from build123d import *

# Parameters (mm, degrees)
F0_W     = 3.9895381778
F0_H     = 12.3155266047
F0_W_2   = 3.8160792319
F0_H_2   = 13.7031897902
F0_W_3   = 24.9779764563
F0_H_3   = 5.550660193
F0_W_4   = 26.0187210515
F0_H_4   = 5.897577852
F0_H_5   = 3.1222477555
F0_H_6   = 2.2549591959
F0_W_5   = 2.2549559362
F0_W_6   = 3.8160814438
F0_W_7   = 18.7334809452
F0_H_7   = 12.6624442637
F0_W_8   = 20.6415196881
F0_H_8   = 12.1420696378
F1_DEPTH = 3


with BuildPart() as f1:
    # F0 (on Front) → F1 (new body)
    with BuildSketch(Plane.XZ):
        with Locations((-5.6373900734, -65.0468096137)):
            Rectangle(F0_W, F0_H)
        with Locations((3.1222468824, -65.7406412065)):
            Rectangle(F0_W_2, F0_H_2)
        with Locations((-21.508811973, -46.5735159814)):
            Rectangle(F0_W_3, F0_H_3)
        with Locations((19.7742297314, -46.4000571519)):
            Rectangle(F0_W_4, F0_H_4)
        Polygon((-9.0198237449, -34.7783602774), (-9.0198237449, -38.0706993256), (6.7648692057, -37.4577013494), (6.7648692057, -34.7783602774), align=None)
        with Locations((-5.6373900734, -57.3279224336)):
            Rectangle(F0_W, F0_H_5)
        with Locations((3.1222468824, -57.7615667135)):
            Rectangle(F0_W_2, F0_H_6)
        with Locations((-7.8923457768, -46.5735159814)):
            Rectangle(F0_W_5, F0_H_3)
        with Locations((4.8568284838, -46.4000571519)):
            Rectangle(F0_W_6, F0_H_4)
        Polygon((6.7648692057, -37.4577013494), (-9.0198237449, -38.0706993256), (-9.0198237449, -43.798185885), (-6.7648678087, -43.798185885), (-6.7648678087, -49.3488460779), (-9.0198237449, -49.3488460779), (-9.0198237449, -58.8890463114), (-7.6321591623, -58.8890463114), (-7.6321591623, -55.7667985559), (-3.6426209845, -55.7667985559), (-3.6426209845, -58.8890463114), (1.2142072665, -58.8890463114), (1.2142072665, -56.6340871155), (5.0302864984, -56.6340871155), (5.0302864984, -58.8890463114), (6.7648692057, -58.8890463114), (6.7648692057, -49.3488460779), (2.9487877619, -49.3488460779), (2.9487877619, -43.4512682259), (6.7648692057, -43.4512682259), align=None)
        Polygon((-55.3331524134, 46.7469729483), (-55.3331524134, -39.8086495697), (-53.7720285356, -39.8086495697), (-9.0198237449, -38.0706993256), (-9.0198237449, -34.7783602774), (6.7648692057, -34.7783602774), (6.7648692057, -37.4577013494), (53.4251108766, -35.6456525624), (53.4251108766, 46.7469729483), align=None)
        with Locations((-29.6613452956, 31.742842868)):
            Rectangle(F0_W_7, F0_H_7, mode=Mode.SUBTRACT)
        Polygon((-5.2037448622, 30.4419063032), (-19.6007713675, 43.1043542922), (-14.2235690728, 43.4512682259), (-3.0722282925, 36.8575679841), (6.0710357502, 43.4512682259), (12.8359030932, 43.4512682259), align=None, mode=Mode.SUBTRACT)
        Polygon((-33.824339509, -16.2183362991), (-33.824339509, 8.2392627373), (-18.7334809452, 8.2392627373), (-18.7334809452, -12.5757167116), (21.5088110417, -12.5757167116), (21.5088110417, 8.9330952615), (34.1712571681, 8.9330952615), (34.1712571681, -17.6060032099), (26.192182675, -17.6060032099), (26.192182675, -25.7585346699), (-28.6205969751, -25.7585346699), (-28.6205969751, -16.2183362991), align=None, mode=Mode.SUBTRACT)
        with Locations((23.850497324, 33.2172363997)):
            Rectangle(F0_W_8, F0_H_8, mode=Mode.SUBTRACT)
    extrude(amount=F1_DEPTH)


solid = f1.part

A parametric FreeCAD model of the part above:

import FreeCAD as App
import Part
import Sketcher
from FreeCAD import Vector
Q = App.Units.Quantity

doc = App.newDocument("Part")
body = doc.addObject("PartDesign::Body", "Body")

sketch1 = body.newObject("Sketcher::SketchObject", "Sketch")
sketch1.AttachmentSupport = (doc.getObject("XZ_Plane"), [""])
sketch1.MapMode = "FlatFace"
sketch1.addGeometry(Part.LineSegment(Vector(-7.6, -71.2, 0), Vector(-3.6, -71.2, 0)), False)
sketch1.addGeometry(Part.LineSegment(Vector(-3.6, -71.2, 0), Vector(-3.6, -58.9, 0)), False)
sketch1.addGeometry(Part.LineSegment(Vector(-3.6, -58.9, 0), Vector(1.2, -58.9, 0)), False)
sketch1.addGeometry(Part.LineSegment(Vector(1.2, -58.9, 0), Vector(1.2, -72.6, 0)), False)
sketch1.addGeometry(Part.LineSegment(Vector(1.2, -72.6, 0), Vector(5, -72.6, 0)), False)
sketch1.addGeometry(Part.LineSegment(Vector(5, -72.6, 0), Vector(5, -58.9, 0)), False)
sketch1.addGeometry(Part.LineSegment(Vector(5, -58.9, 0), Vector(6.8, -58.9, 0)), False)
sketch1.addGeometry(Part.LineSegment(Vector(6.8, -58.9, 0), Vector(6.8, -49.3, 0)), False)
sketch1.addGeometry(Part.LineSegment(Vector(6.8, -49.3, 0), Vector(32.8, -49.3, 0)), False)
sketch1.addGeometry(Part.LineSegment(Vector(32.8, -49.3, 0), Vector(32.8, -43.5, 0)), False)
sketch1.addGeometry(Part.LineSegment(Vector(32.8, -43.5, 0), Vector(6.8, -43.5, 0)), False)
sketch1.addGeometry(Part.LineSegment(Vector(6.8, -43.5, 0), Vector(6.8, -37.5, 0)), False)
sketch1.addGeometry(Part.LineSegment(Vector(6.8, -37.5, 0), Vector(53.4, -35.6, 0)), False)
sketch1.addGeometry(Part.LineSegment(Vector(53.4, -35.6, 0), Vector(53.4, 46.7, 0)), False)
sketch1.addGeometry(Part.LineSegment(Vector(53.4, 46.7, 0), Vector(-55.3, 46.7, 0)), False)
sketch1.addGeometry(Part.LineSegment(Vector(-55.3, 46.7, 0), Vector(-55.3, -39.8, 0)), False)
sketch1.addGeometry(Part.LineSegment(Vector(-55.3, -39.8, 0), Vector(-53.8, -39.8, 0)), False)
sketch1.addGeometry(Part.LineSegment(Vector(-53.8, -39.8, 0), Vector(-9, -38.1, 0)), False)
sketch1.addGeometry(Part.LineSegment(Vector(-9, -38.1, 0), Vector(-9, -43.8, 0)), False)
sketch1.addGeometry(Part.LineSegment(Vector(-9, -43.8, 0), Vector(-34, -43.8, 0)), False)
sketch1.addGeometry(Part.LineSegment(Vector(-34, -43.8, 0), Vector(-34, -49.3, 0)), False)
sketch1.addGeometry(Part.LineSegment(Vector(-34, -49.3, 0), Vector(-9, -49.3, 0)), False)
sketch1.addGeometry(Part.LineSegment(Vector(-9, -49.3, 0), Vector(-9, -58.9, 0)), False)
sketch1.addGeometry(Part.LineSegment(Vector(-9, -58.9, 0), Vector(-7.6, -58.9, 0)), False)
sketch1.addGeometry(Part.LineSegment(Vector(-7.6, -58.9, 0), Vector(-7.6, -71.2, 0)), False)
sketch1.addGeometry(Part.LineSegment(Vector(-28.6, -16.2, 0), Vector(-33.8, -16.2, 0)), False)
sketch1.addGeometry(Part.LineSegment(Vector(-33.8, -16.2, 0), Vector(-33.8, 8.2, 0)), False)
sketch1.addGeometry(Part.LineSegment(Vector(-33.8, 8.2, 0), Vector(-18.7, 8.2, 0)), False)
sketch1.addGeometry(Part.LineSegment(Vector(-18.7, 8.2, 0), Vector(-18.7, -12.6, 0)), False)
sketch1.addGeometry(Part.LineSegment(Vector(-18.7, -12.6, 0), Vector(21.5, -12.6, 0)), False)
sketch1.addGeometry(Part.LineSegment(Vector(21.5, -12.6, 0), Vector(21.5, 8.9, 0)), False)
sketch1.addGeometry(Part.LineSegment(Vector(21.5, 8.9, 0), Vector(34.2, 8.9, 0)), False)
sketch1.addGeometry(Part.LineSegment(Vector(34.2, 8.9, 0), Vector(34.2, -17.6, 0)), False)
sketch1.addGeometry(Part.LineSegment(Vector(34.2, -17.6, 0), Vector(26.2, -17.6, 0)), False)
sketch1.addGeometry(Part.LineSegment(Vector(26.2, -17.6, 0), Vector(26.2, -25.8, 0)), False)
sketch1.addGeometry(Part.LineSegment(Vector(26.2, -25.8, 0), Vector(-28.6, -25.8, 0)), False)
sketch1.addGeometry(Part.LineSegment(Vector(-28.6, -25.8, 0), Vector(-28.6, -16.2, 0)), False)
sketch1.addGeometry(Part.LineSegment(Vector(-20.3, 25.4, 0), Vector(-39, 25.4, 0)), False)
sketch1.addGeometry(Part.LineSegment(Vector(-39, 25.4, 0), Vector(-39, 38.1, 0)), False)
sketch1.addGeometry(Part.LineSegment(Vector(-39, 38.1, 0), Vector(-20.3, 38.1, 0)), False)
sketch1.addGeometry(Part.LineSegment(Vector(-20.3, 38.1, 0), Vector(-20.3, 25.4, 0)), False)
sketch1.addGeometry(Part.LineSegment(Vector(12.8, 43.5, 0), Vector(-5.2, 30.4, 0)), False)
sketch1.addGeometry(Part.LineSegment(Vector(-5.2, 30.4, 0), Vector(-19.6, 43.1, 0)), False)
sketch1.addGeometry(Part.LineSegment(Vector(-19.6, 43.1, 0), Vector(-14.2, 43.5, 0)), False)
sketch1.addGeometry(Part.LineSegment(Vector(-14.2, 43.5, 0), Vector(-3.1, 36.9, 0)), False)
sketch1.addGeometry(Part.LineSegment(Vector(-3.1, 36.9, 0), Vector(6.1, 43.5, 0)), False)
sketch1.addGeometry(Part.LineSegment(Vector(6.1, 43.5, 0), Vector(12.8, 43.5, 0)), False)
sketch1.addGeometry(Part.LineSegment(Vector(34.2, 27.1, 0), Vector(13.5, 27.1, 0)), False)
sketch1.addGeometry(Part.LineSegment(Vector(13.5, 27.1, 0), Vector(13.5, 39.3, 0)), False)
sketch1.addGeometry(Part.LineSegment(Vector(13.5, 39.3, 0), Vector(34.2, 39.3, 0)), False)
sketch1.addGeometry(Part.LineSegment(Vector(34.2, 39.3, 0), Vector(34.2, 27.1, 0)), False)
sketch1.addConstraint(Sketcher.Constraint("Coincident", 0, 2, 1, 1))
sketch1.addConstraint(Sketcher.Constraint("Coincident", 1, 2, 2, 1))
sketch1.addConstraint(Sketcher.Constraint("Coincident", 2, 2, 3, 1))
sketch1.addConstraint(Sketcher.Constraint("Coincident", 3, 2, 4, 1))
sketch1.addConstraint(Sketcher.Constraint("Coincident", 4, 2, 5, 1))
sketch1.addConstraint(Sketcher.Constraint("Coincident", 5, 2, 6, 1))
sketch1.addConstraint(Sketcher.Constraint("Coincident", 6, 2, 7, 1))
sketch1.addConstraint(Sketcher.Constraint("Coincident", 7, 2, 8, 1))
sketch1.addConstraint(Sketcher.Constraint("Coincident", 8, 2, 9, 1))
sketch1.addConstraint(Sketcher.Constraint("Coincident", 9, 2, 10, 1))
sketch1.addConstraint(Sketcher.Constraint("Coincident", 10, 2, 11, 1))
sketch1.addConstraint(Sketcher.Constraint("Coincident", 11, 2, 12, 1))
sketch1.addConstraint(Sketcher.Constraint("Coincident", 12, 2, 13, 1))
sketch1.addConstraint(Sketcher.Constraint("Coincident", 13, 2, 14, 1))
sketch1.addConstraint(Sketcher.Constraint("Coincident", 14, 2, 15, 1))
sketch1.addConstraint(Sketcher.Constraint("Coincident", 15, 2, 16, 1))
sketch1.addConstraint(Sketcher.Constraint("Coincident", 16, 2, 17, 1))
sketch1.addConstraint(Sketcher.Constraint("Coincident", 17, 2, 18, 1))
sketch1.addConstraint(Sketcher.Constraint("Coincident", 18, 2, 19, 1))
sketch1.addConstraint(Sketcher.Constraint("Coincident", 19, 2, 20, 1))
sketch1.addConstraint(Sketcher.Constraint("Coincident", 20, 2, 21, 1))
sketch1.addConstraint(Sketcher.Constraint("Coincident", 21, 2, 22, 1))
sketch1.addConstraint(Sketcher.Constraint("Coincident", 22, 2, 23, 1))
sketch1.addConstraint(Sketcher.Constraint("Coincident", 23, 2, 24, 1))
sketch1.addConstraint(Sketcher.Constraint("Coincident", 24, 2, 0, 1))
sketch1.addConstraint(Sketcher.Constraint("Coincident", 25, 2, 26, 1))
sketch1.addConstraint(Sketcher.Constraint("Coincident", 26, 2, 27, 1))
sketch1.addConstraint(Sketcher.Constraint("Coincident", 27, 2, 28, 1))
sketch1.addConstraint(Sketcher.Constraint("Coincident", 28, 2, 29, 1))
sketch1.addConstraint(Sketcher.Constraint("Coincident", 29, 2, 30, 1))
sketch1.addConstraint(Sketcher.Constraint("Coincident", 30, 2, 31, 1))
sketch1.addConstraint(Sketcher.Constraint("Coincident", 31, 2, 32, 1))
sketch1.addConstraint(Sketcher.Constraint("Coincident", 32, 2, 33, 1))
sketch1.addConstraint(Sketcher.Constraint("Coincident", 33, 2, 34, 1))
sketch1.addConstraint(Sketcher.Constraint("Coincident", 34, 2, 35, 1))
sketch1.addConstraint(Sketcher.Constraint("Coincident", 35, 2, 36, 1))
sketch1.addConstraint(Sketcher.Constraint("Coincident", 36, 2, 25, 1))
sketch1.addConstraint(Sketcher.Constraint("Coincident", 37, 2, 38, 1))
sketch1.addConstraint(Sketcher.Constraint("Coincident", 38, 2, 39, 1))
sketch1.addConstraint(Sketcher.Constraint("Coincident", 39, 2, 40, 1))
sketch1.addConstraint(Sketcher.Constraint("Coincident", 40, 2, 37, 1))
sketch1.addConstraint(Sketcher.Constraint("Coincident", 41, 2, 42, 1))
sketch1.addConstraint(Sketcher.Constraint("Coincident", 42, 2, 43, 1))
sketch1.addConstraint(Sketcher.Constraint("Coincident", 43, 2, 44, 1))
sketch1.addConstraint(Sketcher.Constraint("Coincident", 44, 2, 45, 1))
sketch1.addConstraint(Sketcher.Constraint("Coincident", 45, 2, 46, 1))
sketch1.addConstraint(Sketcher.Constraint("Coincident", 46, 2, 41, 1))
sketch1.addConstraint(Sketcher.Constraint("Coincident", 47, 2, 48, 1))
sketch1.addConstraint(Sketcher.Constraint("Coincident", 48, 2, 49, 1))
sketch1.addConstraint(Sketcher.Constraint("Coincident", 49, 2, 50, 1))
sketch1.addConstraint(Sketcher.Constraint("Coincident", 50, 2, 47, 1))
sketch1.addConstraint(Sketcher.Constraint("Horizontal", 0))
sketch1.addConstraint(Sketcher.Constraint("Vertical", 1))
sketch1.addConstraint(Sketcher.Constraint("Horizontal", 2))
sketch1.addConstraint(Sketcher.Constraint("Vertical", 3))
sketch1.addConstraint(Sketcher.Constraint("Horizontal", 4))
sketch1.addConstraint(Sketcher.Constraint("Vertical", 5))
sketch1.addConstraint(Sketcher.Constraint("Horizontal", 6))
sketch1.addConstraint(Sketcher.Constraint("Vertical", 7))
sketch1.addConstraint(Sketcher.Constraint("Horizontal", 8))
sketch1.addConstraint(Sketcher.Constraint("Vertical", 9))
sketch1.addConstraint(Sketcher.Constraint("Horizontal", 10))
sketch1.addConstraint(Sketcher.Constraint("Vertical", 11))
sketch1.addConstraint(Sketcher.Constraint("Vertical", 13))
sketch1.addConstraint(Sketcher.Constraint("Horizontal", 14))
sketch1.addConstraint(Sketcher.Constraint("Vertical", 15))
sketch1.addConstraint(Sketcher.Constraint("Horizontal", 16))
sketch1.addConstraint(Sketcher.Constraint("Vertical", 18))
sketch1.addConstraint(Sketcher.Constraint("Horizontal", 19))
sketch1.addConstraint(Sketcher.Constraint("Vertical", 20))
sketch1.addConstraint(Sketcher.Constraint("Horizontal", 21))
sketch1.addConstraint(Sketcher.Constraint("Vertical", 22))
sketch1.addConstraint(Sketcher.Constraint("Horizontal", 23))
sketch1.addConstraint(Sketcher.Constraint("Vertical", 24))
sketch1.addConstraint(Sketcher.Constraint("Horizontal", 25))
sketch1.addConstraint(Sketcher.Constraint("Vertical", 26))
sketch1.addConstraint(Sketcher.Constraint("Horizontal", 27))
sketch1.addConstraint(Sketcher.Constraint("Vertical", 28))
sketch1.addConstraint(Sketcher.Constraint("Horizontal", 29))
sketch1.addConstraint(Sketcher.Constraint("Vertical", 30))
sketch1.addConstraint(Sketcher.Constraint("Horizontal", 31))
sketch1.addConstraint(Sketcher.Constraint("Vertical", 32))
sketch1.addConstraint(Sketcher.Constraint("Horizontal", 33))
sketch1.addConstraint(Sketcher.Constraint("Vertical", 34))
sketch1.addConstraint(Sketcher.Constraint("Horizontal", 35))
sketch1.addConstraint(Sketcher.Constraint("Vertical", 36))
sketch1.addConstraint(Sketcher.Constraint("Horizontal", 37))
sketch1.addConstraint(Sketcher.Constraint("Vertical", 38))
sketch1.addConstraint(Sketcher.Constraint("Horizontal", 39))
sketch1.addConstraint(Sketcher.Constraint("Vertical", 40))
sketch1.addConstraint(Sketcher.Constraint("Horizontal", 46))
sketch1.addConstraint(Sketcher.Constraint("Horizontal", 47))
sketch1.addConstraint(Sketcher.Constraint("Vertical", 48))
sketch1.addConstraint(Sketcher.Constraint("Horizontal", 49))
sketch1.addConstraint(Sketcher.Constraint("Vertical", 50))
sketch1.addConstraint(Sketcher.Constraint("Parallel", 12, 17))
sketch1.addConstraint(Sketcher.Constraint("Parallel", 41, 45))
sketch1.addConstraint(Sketcher.Constraint("Horizontal", 2, 2, 5, 2))
sketch1.addConstraint(Sketcher.Constraint("Horizontal", 8, 2, 20, 2))
sketch1.addConstraint(Sketcher.Constraint("Horizontal", 6, 2, 22, 2))
sketch1.addConstraint(Sketcher.Constraint("Horizontal", 43, 2, 45, 2))
sketch1.addConstraint(Sketcher.Constraint("Vertical", 7, 2, 10, 2))
sketch1.addConstraint(Sketcher.Constraint("Vertical", 18, 2, 21, 2))
sketch1.addConstraint(Sketcher.Constraint("Vertical", 32, 2, 49, 2))
sketch1.addConstraint(Sketcher.Constraint("Equal", 22, 36))
sketch1.addConstraint(Sketcher.Constraint("Equal", 31, 38))
sketch1.addConstraint(Sketcher.Constraint("DistanceY", 7, 1, 7, 2, Q("9.5402 mm")))
sketch1.addConstraint(Sketcher.Constraint("DistanceY", 26, 1, 26, 2, Q("24.457599 mm")))
sketch1.addConstraint(Sketcher.Constraint("DistanceY", 32, 2, 32, 1, Q("26.539098 mm")))
sketch1.addConstraint(Sketcher.Constraint("DistanceX", 0, 1, 0, 2, Q("3.989538 mm")))
sketch1.addConstraint(Sketcher.Constraint("DistanceX", 2, 1, 2, 2, Q("4.856828 mm")))
sketch1.addConstraint(Sketcher.Constraint("DistanceX", 4, 1, 4, 2, Q("3.816079 mm")))
sketch1.addConstraint(Sketcher.Constraint("DistanceX", 8, 1, 8, 2, Q("26.018721 mm")))
sketch1.addConstraint(Sketcher.Constraint("DistanceX", 27, 1, 27, 2, Q("15.090859 mm")))
sketch1.addConstraint(Sketcher.Constraint("DistanceX", 29, 1, 29, 2, Q("40.242292 mm")))
sketch1.addConstraint(Sketcher.Constraint("DistanceX", 35, 2, 35, 1, Q("54.81278 mm")))
sketch1.addConstraint(Sketcher.Constraint("DistanceX", 37, 2, 37, 1, Q("18.733481 mm")))
sketch1.addConstraint(Sketcher.Constraint("DistanceX", 47, 2, 47, 1, Q("20.64152 mm")))
sketch1.addConstraint(Sketcher.Constraint("DistanceY", 3, 2, 3, 1, Q("13.70319 mm")))
sketch1.addConstraint(Sketcher.Constraint("DistanceY", 20, 2, 20, 1, Q("5.55066 mm")))
sketch1.addConstraint(Sketcher.Constraint("DistanceY", 28, 2, 28, 1, Q("20.814979 mm")))
sketch1.addConstraint(Sketcher.Constraint("DistanceY", 30, 1, 30, 2, Q("21.508812 mm")))
sketch1.addConstraint(Sketcher.Constraint("DistanceY", 48, 1, 48, 2, Q("12.14207 mm")))
sketch1.addConstraint(Sketcher.Constraint("DistanceY", 11, 2, -1, 1, Q("37.457701 mm")))
sketch1.addConstraint(Sketcher.Constraint("DistanceY", 17, 2, -1, 1, Q("38.070699 mm")))
sketch1.addConstraint(Sketcher.Constraint("DistanceX", 19, 2, -1, 1, Q("33.9978 mm")))
sketch1.addConstraint(Sketcher.Constraint("DistanceY", -1, 1, 47, 2, Q("27.146202 mm")))
sketch1.addConstraint(Sketcher.Constraint("DistanceX", 29, 2, 12, 2, Q("31.9163 mm")))
sketch1.addConstraint(Sketcher.Constraint("DistanceY", 25, 2, 38, 2, Q("54.292401 mm")))
sketch1.addConstraint(Sketcher.Constraint("DistanceY", 44, 2, 43, 2, Q("6.5937 mm")))
sketch1.addConstraint(Sketcher.Constraint("DistanceX", 45, 2, 47, 2, Q("7.458702 mm")))
sketch1.addConstraint(Sketcher.Constraint("DistanceY", 49, 2, 13, 2, Q("7.458702 mm")))
sketch1.addConstraint(Sketcher.Constraint("Distance", 17, Q("44.785939 mm")))
sketch1.addConstraint(Sketcher.Constraint("Distance", 41, Q("22.241232 mm")))
sketch1.addConstraint(Sketcher.Constraint("Distance", 42, Q("19.173209 mm")))
sketch1.addConstraint(Sketcher.Constraint("Distance", 43, Q("5.388381 mm")))
sketch1.addConstraint(Sketcher.Constraint("DistanceX", 6, 1, 6, 2, Q("1.734583 mm")))
sketch1.addConstraint(Sketcher.Constraint("DistanceX", 14, 2, 14, 1, Q("108.758263 mm")))
sketch1.addConstraint(Sketcher.Constraint("DistanceX", 16, 1, 16, 2, Q("1.561124 mm")))
sketch1.addConstraint(Sketcher.Constraint("DistanceX", 19, 2, 19, 1, Q("24.977976 mm")))
sketch1.addConstraint(Sketcher.Constraint("DistanceX", 23, 1, 23, 2, Q("1.387665 mm")))
sketch1.addConstraint(Sketcher.Constraint("DistanceX", 25, 2, 25, 1, Q("5.203743 mm")))
sketch1.addConstraint(Sketcher.Constraint("DistanceX", 31, 1, 31, 2, Q("12.662446 mm")))
sketch1.addConstraint(Sketcher.Constraint("DistanceX", 46, 1, 46, 2, Q("6.764867 mm")))
sketch1.addConstraint(Sketcher.Constraint("DistanceY", 1, 1, 1, 2, Q("12.315527 mm")))
sketch1.addConstraint(Sketcher.Constraint("DistanceY", 9, 1, 9, 2, Q("5.897578 mm")))
sketch1.addConstraint(Sketcher.Constraint("DistanceY", 11, 1, 11, 2, Q("5.993567 mm")))
sketch1.addConstraint(Sketcher.Constraint("DistanceY", 13, 1, 13, 2, Q("82.392626 mm")))
sketch1.addConstraint(Sketcher.Constraint("DistanceY", -1, 1, 37, 2, Q("25.411621 mm")))
sketch1.addConstraint(Sketcher.Constraint("DistanceX", 42, 2, -1, 1, Q("19.600771 mm")))
sketch1.addConstraint(Sketcher.Constraint("DistanceX", 43, 2, -1, 1, Q("14.223569 mm")))
sketch1.addConstraint(Sketcher.Constraint("DistanceY", -1, 1, 43, 2, Q("43.451268 mm")))
sketch1.addConstraint(Sketcher.Constraint("DistanceX", 37, 2, 36, 2, Q("10.407489 mm")))
pad1 = body.newObject("PartDesign::Pad", "Pad")
pad1.Profile = sketch1
pad1.Length = 3

doc.recompute()
